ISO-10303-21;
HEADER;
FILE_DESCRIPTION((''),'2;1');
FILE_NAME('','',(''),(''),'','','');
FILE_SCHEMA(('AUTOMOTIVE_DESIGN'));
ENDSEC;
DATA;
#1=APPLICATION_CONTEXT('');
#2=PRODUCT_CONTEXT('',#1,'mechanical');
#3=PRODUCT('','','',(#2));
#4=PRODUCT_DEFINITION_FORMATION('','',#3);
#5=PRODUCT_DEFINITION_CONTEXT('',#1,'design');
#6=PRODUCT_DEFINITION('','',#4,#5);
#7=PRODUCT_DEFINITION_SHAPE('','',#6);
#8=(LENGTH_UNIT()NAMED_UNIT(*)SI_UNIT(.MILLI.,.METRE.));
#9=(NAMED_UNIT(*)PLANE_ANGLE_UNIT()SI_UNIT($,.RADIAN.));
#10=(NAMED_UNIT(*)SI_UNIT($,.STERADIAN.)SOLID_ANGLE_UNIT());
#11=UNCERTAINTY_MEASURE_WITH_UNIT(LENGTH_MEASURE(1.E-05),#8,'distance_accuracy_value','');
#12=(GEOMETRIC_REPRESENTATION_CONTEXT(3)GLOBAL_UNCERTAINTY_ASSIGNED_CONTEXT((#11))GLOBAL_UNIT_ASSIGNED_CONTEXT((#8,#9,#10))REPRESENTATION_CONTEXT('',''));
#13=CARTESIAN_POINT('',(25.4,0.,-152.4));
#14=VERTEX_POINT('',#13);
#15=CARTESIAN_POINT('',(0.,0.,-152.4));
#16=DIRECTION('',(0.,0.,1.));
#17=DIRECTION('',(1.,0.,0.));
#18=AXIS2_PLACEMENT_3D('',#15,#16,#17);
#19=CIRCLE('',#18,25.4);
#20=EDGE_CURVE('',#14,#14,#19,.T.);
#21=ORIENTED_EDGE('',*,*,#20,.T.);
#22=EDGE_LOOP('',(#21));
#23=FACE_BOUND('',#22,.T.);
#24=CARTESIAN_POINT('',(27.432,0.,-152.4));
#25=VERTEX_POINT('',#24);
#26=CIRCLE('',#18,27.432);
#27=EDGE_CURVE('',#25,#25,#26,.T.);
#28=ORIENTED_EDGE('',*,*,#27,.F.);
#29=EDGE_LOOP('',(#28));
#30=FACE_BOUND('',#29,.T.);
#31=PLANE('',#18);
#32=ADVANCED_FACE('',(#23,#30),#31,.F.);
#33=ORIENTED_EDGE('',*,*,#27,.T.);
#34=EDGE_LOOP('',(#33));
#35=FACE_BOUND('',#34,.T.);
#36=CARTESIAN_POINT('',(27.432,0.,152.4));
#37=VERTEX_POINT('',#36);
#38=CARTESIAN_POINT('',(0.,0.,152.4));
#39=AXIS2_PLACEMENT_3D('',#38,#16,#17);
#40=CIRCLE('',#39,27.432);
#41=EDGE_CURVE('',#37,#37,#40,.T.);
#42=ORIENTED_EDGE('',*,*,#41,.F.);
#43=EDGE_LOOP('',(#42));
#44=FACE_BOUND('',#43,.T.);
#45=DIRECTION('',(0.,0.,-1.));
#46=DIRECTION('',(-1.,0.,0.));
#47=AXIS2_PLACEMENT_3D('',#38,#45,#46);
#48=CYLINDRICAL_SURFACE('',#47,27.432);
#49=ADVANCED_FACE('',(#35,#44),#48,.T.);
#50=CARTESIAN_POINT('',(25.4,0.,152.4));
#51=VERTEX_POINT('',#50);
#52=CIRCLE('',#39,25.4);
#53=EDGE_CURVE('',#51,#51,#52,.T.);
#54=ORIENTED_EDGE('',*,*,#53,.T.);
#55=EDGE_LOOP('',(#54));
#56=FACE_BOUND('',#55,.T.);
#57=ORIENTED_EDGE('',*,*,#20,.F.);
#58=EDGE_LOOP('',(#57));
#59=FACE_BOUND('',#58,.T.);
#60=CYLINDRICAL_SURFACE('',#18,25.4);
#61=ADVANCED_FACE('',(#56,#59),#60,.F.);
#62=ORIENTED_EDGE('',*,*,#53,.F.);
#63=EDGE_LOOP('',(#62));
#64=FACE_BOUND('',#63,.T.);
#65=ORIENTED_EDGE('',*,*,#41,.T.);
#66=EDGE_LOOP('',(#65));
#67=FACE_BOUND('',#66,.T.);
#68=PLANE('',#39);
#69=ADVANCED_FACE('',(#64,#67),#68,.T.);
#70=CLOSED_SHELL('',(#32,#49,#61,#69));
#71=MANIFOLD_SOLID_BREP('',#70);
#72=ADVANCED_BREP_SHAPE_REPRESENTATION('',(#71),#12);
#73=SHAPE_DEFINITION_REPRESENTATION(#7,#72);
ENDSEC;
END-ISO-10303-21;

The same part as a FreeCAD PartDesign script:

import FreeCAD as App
import Part
import Sketcher
Q = App.Units.Quantity

doc = App.newDocument("Part")
body = doc.addObject("PartDesign::Body", "Body")

# Sketch on XY plane
sketch1 = doc.addObject("Sketcher::SketchObject", "Sketch")
body.addObject(sketch1)
sketch1.AttachmentSupport = (doc.XY_Plane, [""])
sketch1.MapMode = "FlatFace"
sketch1.addGeometry(Part.Circle(App.Vector(0, 0, 0), App.Vector(0, 0, 1), 27), False)
sketch1.addConstraint([
    Sketcher.Constraint("Coincident", 0, 3, -1, 1),
    Sketcher.Constraint("Diameter", 0, Q("2.16 in")),
])
pad1 = doc.addObject("PartDesign::Pad", "Pad")
body.addObject(pad1)
pad1.Profile = sketch1
pad1.Length = Q("12 in")
pad1.Midplane = True

# Sketch on XY plane
sketch2 = doc.addObject("Sketcher::SketchObject", "Sketch001")
body.addObject(sketch2)
sketch2.AttachmentSupport = (doc.XY_Plane, [""])
sketch2.MapMode = "FlatFace"
sketch2.AttachmentOffset = App.Placement(App.Vector(0, 0, 6 * 25.4), App.Rotation())
sketch2.addGeometry(Part.Circle(App.Vector(0, 0, 0), App.Vector(0, 0, 1), 25), False)
sketch2.addConstraint([
    Sketcher.Constraint("Coincident", 0, 3, -1, 1),
    Sketcher.Constraint("Diameter", 0, Q("2 in")),
])
pocket1 = doc.addObject("PartDesign::Pocket", "Pocket")
body.addObject(pocket1)
pocket1.Profile = sketch2
pocket1.Type = "ThroughAll"

doc.recompute()
